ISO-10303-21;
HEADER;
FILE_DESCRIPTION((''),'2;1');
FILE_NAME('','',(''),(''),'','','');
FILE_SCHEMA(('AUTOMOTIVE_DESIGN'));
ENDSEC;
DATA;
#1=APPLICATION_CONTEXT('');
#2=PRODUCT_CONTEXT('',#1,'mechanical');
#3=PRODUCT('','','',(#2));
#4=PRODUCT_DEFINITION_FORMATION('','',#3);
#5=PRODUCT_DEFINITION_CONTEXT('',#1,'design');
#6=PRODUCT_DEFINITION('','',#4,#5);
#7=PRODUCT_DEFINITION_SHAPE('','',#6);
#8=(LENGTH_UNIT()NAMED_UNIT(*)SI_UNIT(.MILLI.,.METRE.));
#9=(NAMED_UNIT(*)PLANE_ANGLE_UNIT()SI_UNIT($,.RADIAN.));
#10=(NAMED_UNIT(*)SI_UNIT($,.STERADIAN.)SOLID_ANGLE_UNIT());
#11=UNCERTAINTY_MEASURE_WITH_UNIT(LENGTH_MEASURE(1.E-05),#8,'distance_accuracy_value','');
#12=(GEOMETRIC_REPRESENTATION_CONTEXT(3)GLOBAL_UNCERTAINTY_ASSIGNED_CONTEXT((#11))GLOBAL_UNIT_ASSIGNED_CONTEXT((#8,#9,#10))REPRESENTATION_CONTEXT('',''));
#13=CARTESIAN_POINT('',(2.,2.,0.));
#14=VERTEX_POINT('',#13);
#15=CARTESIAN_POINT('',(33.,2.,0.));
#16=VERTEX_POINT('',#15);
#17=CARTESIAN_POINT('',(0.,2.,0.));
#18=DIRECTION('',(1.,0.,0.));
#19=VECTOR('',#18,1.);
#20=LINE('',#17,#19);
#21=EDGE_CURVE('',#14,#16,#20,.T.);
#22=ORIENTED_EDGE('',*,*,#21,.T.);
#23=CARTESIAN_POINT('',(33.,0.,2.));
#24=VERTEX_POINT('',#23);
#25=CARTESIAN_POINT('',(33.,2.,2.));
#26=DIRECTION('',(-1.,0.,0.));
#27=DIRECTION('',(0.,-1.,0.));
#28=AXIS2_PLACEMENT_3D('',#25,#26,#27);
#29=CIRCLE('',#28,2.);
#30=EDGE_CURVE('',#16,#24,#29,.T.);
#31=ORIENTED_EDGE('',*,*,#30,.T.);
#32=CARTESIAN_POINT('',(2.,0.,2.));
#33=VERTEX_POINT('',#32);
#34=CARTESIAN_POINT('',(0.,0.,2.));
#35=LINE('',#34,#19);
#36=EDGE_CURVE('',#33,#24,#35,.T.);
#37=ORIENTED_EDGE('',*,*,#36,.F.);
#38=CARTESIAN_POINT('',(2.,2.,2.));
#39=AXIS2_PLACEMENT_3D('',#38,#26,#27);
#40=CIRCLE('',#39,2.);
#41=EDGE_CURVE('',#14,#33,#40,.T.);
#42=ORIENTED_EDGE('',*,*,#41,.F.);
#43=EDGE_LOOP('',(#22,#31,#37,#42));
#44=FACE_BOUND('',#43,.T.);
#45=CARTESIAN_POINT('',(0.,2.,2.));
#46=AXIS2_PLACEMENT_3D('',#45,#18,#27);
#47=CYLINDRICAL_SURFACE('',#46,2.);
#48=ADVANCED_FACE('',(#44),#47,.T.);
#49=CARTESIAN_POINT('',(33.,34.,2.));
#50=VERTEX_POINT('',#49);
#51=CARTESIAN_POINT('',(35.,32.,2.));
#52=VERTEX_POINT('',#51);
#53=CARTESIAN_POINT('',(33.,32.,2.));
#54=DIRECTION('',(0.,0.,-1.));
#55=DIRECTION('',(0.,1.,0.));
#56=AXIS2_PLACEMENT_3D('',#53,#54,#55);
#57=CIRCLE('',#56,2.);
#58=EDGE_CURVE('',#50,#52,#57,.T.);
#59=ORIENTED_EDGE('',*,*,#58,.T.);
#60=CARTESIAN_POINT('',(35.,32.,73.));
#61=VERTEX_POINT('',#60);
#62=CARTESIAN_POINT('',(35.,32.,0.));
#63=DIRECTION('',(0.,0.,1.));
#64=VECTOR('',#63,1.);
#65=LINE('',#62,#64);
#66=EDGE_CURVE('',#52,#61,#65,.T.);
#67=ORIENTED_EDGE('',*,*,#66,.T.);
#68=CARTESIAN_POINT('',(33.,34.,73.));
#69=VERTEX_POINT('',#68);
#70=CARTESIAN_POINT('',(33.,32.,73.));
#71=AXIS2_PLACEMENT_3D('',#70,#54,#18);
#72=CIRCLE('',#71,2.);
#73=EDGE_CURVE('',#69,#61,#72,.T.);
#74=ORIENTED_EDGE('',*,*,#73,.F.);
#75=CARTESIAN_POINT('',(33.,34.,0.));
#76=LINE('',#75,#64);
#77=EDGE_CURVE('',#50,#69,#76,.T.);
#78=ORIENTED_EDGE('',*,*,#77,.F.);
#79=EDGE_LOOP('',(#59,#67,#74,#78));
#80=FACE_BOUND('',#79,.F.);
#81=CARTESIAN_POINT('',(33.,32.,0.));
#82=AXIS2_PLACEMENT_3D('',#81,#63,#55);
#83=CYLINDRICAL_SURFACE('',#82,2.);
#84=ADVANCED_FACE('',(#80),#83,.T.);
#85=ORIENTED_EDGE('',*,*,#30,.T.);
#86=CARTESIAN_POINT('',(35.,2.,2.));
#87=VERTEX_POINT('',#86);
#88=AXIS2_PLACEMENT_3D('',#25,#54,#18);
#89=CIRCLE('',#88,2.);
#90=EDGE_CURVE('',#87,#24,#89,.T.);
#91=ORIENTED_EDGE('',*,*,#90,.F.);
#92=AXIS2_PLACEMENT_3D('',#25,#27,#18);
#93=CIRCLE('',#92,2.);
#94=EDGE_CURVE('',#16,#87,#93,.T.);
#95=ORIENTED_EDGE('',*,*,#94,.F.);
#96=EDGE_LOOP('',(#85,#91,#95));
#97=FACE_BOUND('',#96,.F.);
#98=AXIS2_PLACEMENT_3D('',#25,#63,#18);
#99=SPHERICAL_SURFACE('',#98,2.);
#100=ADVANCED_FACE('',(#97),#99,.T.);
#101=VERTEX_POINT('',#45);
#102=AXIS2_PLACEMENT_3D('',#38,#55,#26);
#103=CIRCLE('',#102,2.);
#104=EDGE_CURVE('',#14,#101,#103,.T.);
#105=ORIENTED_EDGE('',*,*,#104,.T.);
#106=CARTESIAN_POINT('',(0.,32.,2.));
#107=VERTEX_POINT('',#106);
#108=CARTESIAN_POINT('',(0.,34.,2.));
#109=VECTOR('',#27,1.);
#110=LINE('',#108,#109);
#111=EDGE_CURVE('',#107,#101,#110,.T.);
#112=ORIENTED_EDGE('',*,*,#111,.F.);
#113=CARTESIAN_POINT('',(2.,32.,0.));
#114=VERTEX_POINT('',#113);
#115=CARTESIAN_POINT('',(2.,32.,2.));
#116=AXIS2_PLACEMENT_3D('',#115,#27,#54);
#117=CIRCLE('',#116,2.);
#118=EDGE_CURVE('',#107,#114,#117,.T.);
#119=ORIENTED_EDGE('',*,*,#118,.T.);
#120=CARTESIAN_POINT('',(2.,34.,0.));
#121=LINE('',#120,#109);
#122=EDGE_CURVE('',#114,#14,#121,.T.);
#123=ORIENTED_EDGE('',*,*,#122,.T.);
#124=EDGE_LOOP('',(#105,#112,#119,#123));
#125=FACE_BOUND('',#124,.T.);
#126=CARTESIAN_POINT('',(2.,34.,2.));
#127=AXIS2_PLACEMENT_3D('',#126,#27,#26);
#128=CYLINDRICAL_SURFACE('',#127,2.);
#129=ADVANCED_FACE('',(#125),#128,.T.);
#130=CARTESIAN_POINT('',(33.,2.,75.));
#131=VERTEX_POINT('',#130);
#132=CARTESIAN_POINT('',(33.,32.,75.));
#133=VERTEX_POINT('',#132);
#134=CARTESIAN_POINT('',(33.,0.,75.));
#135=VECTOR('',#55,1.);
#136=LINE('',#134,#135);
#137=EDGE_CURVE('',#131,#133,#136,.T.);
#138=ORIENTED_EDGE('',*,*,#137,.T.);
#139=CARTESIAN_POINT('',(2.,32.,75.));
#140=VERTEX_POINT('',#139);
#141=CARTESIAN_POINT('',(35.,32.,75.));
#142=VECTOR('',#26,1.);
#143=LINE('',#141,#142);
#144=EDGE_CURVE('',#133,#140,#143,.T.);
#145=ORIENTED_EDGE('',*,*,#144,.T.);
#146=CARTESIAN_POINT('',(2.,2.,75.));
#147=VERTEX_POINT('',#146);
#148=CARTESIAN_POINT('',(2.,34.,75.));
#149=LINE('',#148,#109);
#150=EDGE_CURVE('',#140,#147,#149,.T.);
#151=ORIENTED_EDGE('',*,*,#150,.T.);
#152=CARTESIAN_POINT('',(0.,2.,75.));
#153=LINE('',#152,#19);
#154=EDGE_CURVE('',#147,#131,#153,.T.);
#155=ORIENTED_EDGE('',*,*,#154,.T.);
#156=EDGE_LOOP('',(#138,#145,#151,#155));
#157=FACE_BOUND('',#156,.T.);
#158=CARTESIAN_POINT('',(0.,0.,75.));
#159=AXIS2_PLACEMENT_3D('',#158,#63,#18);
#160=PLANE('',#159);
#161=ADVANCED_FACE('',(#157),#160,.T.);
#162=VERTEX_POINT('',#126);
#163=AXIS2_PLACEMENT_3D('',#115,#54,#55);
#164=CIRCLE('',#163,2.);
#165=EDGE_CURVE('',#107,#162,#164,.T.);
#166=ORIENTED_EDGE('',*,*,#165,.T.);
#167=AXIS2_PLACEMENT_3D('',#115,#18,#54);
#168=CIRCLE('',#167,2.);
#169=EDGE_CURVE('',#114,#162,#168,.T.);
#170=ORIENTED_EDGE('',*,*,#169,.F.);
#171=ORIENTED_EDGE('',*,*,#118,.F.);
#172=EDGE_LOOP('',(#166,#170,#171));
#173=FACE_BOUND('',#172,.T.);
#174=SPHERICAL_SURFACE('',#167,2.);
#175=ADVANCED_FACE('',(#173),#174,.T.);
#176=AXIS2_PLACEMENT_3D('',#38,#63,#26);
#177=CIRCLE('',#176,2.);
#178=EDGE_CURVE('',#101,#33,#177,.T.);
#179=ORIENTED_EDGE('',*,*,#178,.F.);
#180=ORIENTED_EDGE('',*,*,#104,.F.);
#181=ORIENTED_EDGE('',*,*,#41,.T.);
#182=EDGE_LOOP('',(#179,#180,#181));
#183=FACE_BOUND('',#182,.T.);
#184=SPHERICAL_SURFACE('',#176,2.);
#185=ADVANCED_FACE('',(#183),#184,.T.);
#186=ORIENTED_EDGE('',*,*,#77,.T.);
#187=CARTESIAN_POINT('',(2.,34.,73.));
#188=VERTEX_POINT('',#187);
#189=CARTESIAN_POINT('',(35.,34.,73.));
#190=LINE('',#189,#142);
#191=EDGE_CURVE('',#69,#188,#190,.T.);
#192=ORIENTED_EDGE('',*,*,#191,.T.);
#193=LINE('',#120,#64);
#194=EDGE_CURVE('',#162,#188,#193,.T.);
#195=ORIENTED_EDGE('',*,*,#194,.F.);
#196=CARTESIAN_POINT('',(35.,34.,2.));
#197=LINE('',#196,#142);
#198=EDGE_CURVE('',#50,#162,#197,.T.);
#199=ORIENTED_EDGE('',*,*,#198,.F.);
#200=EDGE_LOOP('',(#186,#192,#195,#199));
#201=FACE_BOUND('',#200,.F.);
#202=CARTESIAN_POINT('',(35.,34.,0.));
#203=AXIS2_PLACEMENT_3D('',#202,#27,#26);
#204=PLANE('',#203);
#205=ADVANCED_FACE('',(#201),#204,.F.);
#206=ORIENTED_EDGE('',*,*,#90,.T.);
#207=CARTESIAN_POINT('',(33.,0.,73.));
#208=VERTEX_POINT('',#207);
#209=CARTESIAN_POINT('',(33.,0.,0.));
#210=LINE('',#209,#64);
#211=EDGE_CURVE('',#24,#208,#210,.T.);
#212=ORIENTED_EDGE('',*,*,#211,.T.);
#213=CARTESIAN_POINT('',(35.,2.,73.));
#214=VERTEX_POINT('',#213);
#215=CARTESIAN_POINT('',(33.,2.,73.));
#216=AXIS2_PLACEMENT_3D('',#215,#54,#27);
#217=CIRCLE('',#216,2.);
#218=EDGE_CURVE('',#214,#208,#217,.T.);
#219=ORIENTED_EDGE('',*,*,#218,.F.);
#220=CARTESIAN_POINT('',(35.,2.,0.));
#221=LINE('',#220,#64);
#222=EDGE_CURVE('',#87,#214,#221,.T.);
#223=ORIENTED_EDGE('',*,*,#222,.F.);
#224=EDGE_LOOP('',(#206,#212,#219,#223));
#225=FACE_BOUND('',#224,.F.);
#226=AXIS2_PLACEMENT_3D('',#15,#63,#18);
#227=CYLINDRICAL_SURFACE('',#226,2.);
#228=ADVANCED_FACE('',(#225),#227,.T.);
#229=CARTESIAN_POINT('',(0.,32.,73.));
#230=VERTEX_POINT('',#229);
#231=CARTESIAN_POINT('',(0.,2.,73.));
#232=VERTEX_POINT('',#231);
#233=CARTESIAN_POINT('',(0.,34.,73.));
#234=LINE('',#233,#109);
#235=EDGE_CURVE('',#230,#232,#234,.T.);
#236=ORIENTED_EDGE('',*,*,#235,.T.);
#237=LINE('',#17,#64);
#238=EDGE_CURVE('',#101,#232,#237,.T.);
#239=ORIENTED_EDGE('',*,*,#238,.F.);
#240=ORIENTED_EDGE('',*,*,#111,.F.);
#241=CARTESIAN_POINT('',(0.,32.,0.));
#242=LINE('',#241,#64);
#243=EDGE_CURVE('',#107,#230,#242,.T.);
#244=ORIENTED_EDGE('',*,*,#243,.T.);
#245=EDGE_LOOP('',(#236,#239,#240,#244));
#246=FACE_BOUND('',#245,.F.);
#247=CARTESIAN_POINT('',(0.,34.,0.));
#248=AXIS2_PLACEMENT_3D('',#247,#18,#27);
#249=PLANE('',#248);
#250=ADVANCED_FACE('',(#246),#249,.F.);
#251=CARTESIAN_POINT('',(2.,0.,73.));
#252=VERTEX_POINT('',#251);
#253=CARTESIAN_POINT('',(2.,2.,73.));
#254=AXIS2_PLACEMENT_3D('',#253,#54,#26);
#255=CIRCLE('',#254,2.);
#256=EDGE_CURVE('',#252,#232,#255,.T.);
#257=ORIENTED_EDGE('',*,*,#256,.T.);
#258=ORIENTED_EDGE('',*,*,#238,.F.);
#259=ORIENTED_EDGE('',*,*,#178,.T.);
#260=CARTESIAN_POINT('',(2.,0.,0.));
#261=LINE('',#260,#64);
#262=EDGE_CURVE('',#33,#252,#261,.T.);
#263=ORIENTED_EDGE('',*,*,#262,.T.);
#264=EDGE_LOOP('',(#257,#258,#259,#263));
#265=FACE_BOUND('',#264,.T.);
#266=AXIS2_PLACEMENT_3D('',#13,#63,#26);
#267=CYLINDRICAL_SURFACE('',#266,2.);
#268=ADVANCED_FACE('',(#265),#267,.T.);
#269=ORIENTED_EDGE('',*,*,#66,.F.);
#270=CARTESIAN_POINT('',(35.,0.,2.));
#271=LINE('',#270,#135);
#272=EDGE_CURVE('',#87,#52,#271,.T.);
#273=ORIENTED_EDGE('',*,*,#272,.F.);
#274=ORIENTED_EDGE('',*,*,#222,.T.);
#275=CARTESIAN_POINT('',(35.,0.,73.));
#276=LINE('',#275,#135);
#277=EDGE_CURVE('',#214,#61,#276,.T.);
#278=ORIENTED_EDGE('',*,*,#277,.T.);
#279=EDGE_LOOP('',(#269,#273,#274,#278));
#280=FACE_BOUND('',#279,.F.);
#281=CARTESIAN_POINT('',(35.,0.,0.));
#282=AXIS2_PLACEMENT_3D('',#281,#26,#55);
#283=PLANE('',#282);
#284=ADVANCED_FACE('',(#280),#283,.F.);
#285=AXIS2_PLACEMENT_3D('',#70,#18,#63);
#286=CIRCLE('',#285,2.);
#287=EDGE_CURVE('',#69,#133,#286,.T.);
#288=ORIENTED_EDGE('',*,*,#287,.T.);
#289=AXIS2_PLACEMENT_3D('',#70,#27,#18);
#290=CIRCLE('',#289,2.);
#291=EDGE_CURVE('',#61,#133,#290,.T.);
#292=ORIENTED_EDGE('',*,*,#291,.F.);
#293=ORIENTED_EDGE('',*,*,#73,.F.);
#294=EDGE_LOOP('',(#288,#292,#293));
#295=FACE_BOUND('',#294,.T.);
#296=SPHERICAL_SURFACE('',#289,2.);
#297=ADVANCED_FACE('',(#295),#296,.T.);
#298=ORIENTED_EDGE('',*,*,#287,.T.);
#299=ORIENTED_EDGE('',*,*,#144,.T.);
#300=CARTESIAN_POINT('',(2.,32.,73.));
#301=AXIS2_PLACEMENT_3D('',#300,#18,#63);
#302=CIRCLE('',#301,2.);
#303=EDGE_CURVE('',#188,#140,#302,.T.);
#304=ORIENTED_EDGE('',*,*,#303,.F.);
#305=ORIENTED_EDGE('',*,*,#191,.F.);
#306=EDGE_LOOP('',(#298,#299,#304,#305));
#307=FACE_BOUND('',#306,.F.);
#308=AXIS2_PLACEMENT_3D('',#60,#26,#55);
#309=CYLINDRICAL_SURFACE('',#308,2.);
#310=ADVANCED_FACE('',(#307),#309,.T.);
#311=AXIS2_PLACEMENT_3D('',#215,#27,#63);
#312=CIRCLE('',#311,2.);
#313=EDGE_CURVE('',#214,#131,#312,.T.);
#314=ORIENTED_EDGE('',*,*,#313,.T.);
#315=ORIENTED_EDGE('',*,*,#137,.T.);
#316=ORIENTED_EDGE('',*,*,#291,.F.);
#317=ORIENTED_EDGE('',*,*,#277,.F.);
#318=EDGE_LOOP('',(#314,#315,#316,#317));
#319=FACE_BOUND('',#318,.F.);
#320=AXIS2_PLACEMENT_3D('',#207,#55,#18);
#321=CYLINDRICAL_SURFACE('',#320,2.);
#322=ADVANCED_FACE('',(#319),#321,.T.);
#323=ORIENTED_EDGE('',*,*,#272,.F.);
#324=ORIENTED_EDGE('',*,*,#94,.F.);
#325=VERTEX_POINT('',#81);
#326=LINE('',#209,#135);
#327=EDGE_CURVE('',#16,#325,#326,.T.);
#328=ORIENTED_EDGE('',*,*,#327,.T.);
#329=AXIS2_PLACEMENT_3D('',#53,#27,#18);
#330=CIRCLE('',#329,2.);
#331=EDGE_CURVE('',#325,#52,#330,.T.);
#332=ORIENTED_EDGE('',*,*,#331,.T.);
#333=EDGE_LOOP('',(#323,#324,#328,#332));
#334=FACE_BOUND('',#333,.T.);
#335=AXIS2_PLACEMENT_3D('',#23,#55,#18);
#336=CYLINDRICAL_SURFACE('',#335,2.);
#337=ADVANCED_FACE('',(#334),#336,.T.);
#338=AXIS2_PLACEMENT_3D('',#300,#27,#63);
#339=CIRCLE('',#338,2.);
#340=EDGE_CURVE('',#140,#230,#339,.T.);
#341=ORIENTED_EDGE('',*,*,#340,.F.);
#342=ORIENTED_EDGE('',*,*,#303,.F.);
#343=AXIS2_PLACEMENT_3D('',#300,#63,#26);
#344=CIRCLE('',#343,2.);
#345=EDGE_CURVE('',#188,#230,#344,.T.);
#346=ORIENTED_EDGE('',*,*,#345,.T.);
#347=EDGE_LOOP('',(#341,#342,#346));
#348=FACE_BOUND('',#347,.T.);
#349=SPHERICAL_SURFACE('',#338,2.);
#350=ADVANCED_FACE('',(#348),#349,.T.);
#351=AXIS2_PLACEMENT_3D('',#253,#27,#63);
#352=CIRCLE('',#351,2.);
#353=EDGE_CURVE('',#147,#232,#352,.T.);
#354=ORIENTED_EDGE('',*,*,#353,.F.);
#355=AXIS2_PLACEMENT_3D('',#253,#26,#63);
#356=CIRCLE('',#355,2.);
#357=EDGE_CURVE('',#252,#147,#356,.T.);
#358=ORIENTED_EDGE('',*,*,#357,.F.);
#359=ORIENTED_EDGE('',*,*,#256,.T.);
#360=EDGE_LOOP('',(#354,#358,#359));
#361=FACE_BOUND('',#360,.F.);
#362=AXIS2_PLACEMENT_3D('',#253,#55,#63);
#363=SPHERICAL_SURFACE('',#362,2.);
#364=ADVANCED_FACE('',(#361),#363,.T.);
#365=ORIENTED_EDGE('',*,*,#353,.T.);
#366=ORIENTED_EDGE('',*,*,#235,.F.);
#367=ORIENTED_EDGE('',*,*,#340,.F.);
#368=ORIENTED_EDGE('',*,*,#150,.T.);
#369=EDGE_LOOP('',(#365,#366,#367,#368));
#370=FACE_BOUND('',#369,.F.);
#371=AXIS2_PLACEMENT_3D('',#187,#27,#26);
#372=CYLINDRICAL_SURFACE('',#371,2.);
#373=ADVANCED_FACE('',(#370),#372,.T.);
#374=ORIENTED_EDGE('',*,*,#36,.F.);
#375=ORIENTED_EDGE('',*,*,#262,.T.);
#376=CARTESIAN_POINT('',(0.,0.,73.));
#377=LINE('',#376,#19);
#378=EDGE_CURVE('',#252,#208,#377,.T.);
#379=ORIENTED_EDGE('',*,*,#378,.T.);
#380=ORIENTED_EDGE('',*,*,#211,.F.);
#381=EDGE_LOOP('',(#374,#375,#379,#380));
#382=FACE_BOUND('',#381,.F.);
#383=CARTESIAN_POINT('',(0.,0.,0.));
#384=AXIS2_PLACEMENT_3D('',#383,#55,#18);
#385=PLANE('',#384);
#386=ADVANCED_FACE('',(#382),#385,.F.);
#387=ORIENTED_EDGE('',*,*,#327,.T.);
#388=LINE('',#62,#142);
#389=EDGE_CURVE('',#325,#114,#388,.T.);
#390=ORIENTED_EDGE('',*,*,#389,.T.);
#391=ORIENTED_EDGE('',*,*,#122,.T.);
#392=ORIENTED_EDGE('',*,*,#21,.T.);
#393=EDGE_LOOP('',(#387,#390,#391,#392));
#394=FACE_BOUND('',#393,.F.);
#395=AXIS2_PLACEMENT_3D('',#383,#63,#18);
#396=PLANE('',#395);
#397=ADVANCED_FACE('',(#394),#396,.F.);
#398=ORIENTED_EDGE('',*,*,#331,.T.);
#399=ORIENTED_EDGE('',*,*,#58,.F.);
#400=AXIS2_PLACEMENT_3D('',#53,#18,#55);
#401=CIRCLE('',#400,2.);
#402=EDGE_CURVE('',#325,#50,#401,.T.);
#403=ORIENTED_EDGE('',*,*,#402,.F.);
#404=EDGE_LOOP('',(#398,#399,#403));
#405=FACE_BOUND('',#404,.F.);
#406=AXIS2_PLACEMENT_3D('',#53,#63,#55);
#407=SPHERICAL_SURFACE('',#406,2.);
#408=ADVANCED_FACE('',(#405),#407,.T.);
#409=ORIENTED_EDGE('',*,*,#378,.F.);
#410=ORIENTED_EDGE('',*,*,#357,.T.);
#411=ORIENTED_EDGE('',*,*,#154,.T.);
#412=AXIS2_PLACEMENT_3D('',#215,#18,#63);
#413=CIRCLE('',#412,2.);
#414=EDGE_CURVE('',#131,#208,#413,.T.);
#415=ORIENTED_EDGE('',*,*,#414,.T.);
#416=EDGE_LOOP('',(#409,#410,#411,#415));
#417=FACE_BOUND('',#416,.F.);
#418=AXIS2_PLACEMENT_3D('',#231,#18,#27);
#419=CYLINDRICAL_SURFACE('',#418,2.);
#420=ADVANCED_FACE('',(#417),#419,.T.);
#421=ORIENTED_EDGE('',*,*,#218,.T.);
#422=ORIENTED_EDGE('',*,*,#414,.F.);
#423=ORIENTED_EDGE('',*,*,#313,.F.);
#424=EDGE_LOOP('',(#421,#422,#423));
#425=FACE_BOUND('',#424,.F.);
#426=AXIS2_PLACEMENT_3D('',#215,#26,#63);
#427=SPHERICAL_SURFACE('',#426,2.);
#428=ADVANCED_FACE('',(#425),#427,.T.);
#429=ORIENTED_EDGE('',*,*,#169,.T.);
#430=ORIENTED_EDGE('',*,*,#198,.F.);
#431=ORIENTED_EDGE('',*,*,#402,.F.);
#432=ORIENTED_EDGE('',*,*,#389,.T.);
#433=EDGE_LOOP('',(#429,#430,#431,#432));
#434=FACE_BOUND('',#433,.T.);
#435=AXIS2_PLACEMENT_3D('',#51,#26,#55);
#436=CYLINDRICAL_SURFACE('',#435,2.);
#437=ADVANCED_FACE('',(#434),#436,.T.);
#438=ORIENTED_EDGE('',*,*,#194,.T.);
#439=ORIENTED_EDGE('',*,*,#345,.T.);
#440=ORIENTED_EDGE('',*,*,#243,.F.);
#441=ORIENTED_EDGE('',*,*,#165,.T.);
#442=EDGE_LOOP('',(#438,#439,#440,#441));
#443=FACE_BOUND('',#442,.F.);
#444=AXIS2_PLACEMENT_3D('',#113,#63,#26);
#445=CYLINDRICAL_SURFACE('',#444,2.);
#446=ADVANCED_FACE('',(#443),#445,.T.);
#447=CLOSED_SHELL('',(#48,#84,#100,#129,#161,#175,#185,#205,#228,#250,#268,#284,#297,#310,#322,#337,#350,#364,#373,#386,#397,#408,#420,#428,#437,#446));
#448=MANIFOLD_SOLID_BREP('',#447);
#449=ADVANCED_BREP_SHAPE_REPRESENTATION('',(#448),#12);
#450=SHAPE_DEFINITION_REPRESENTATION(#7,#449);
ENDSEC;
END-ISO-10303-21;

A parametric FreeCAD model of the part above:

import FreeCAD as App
import Part
import Sketcher

V = App.Vector

doc = App.newDocument("Part")
body = doc.addObject("PartDesign::Body", "Body")

# Sketch on XY plane
sketch1 = body.newObject("Sketcher::SketchObject", "Sketch")
sketch1.AttachmentSupport = (doc.getObject("XY_Plane"), [""])
sketch1.MapMode = "FlatFace"
sketch1.addGeometry([
    Part.LineSegment(V(0, 34, 0), V(0, 0, 0)),
    Part.LineSegment(V(0, 0, 0), V(35, 0, 0)),
    Part.LineSegment(V(35, 0, 0), V(35, 34, 0)),
    Part.LineSegment(V(35, 34, 0), V(0, 34, 0)),
], False)
sketch1.addConstraint([
    Sketcher.Constraint("Coincident", 0, 2, 1, 1),
    Sketcher.Constraint("Coincident", 1, 2, 2, 1),
    Sketcher.Constraint("Coincident", 2, 2, 3, 1),
    Sketcher.Constraint("Coincident", 3, 2, 0, 1),
    Sketcher.Constraint("Vertical", 0),
    Sketcher.Constraint("Horizontal", 1),
    Sketcher.Constraint("Vertical", 2),
    Sketcher.Constraint("Horizontal", 3),
    Sketcher.Constraint("Coincident", 0, 2, -1, 1),
    Sketcher.Constraint("DistanceX", 1, 1, 1, 2, 35.0),
    Sketcher.Constraint("DistanceY", 0, 2, 0, 1, 34.0),
])
pad1 = body.newObject("PartDesign::Pad", "Pad")
pad1.Profile = sketch1
pad1.Length = 75
doc.recompute()

fillet = body.newObject("PartDesign::Fillet", "Fillet")
fillet.Base = (pad1, ["Edge1"])
fillet.UseAllEdges = True
fillet.Radius = 2

doc.recompute()
